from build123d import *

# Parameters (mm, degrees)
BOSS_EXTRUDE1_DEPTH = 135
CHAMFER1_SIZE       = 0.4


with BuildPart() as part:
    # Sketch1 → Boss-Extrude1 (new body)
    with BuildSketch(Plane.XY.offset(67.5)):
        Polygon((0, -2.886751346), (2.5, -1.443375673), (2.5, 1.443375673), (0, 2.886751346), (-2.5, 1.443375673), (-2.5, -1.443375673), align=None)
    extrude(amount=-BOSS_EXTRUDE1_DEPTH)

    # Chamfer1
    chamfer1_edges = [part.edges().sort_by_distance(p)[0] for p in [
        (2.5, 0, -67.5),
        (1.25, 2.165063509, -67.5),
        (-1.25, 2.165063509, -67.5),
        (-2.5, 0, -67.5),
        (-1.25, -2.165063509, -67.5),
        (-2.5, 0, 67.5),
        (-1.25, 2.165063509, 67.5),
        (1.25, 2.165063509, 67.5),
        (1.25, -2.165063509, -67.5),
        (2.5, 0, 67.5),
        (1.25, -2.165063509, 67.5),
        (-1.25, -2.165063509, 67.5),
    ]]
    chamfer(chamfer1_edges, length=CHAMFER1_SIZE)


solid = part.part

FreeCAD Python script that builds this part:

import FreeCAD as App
import Part
import Sketcher
Q = App.Units.Quantity


def edges_at(feature, points):
    """Names of the edges that pass closest to the given points."""
    edges = feature.Shape.Edges
    near = lambda p: min(range(len(edges)), key=lambda i: edges[i].distToShape(Part.Vertex(*p))[0])
    return sorted({f"Edge{near(p) + 1}" for p in points})


def add_polygon(sketch, points):
    """Adds a closed chain of lines whose ends are joined by coincident constraints."""
    first, n = sketch.GeometryCount, len(points)
    for a, b in zip(points, points[1:] + points[:1]):
        sketch.addGeometry(Part.LineSegment(App.Vector(*a, 0), App.Vector(*b, 0)), False)
    for i in range(n):
        sketch.addConstraint(Sketcher.Constraint("Coincident", first + i, 2, first + (i + 1) % n, 1))

doc = App.newDocument("Part")
params = doc.addObject("Spreadsheet::Sheet", "Params")
for row, (alias, value) in enumerate([
    ("pad1_length", "135 mm"),
    ("chamfer_size", "0.4 mm"),
], start=1):
    params.set(f"A{row}", alias)
    params.set(f"B{row}", "=" + value)
    params.setAlias(f"B{row}", alias)

body = doc.addObject("PartDesign::Body", "Body")

sketch1 = doc.addObject("Sketcher::SketchObject", "Sketch")
body.addObject(sketch1)
sketch1.AttachmentSupport = (doc.XY_Plane, [""])
sketch1.MapMode = "FlatFace"
sketch1.AttachmentOffset = App.Placement(App.Vector(0, 0, 67.5), App.Rotation())
add_polygon(sketch1, [(0, -2.9), (2.5, -1.4), (2.5, 1.4), (0, 2.9), (-2.5, 1.4), (-2.5, -1.4)])
sketch1.addConstraint([
    Sketcher.Constraint("Vertical", 1),
    Sketcher.Constraint("Vertical", 4),
    Sketcher.Constraint("Symmetric", 0, 2, 3, 2, -1, 1),
    Sketcher.Constraint("Symmetric", 2, 2, 5, 2, -1, 1),
    Sketcher.Constraint("PointOnObject", 2, 2, -2),
    Sketcher.Constraint("Parallel", 2, 5),
    Sketcher.Constraint("Horizontal", 1, 2, 3, 2),
    Sketcher.Constraint("Angle", 0, Q("30 deg")),
    Sketcher.Constraint("DistanceX", 3, 2, 1, 2, 5.0),
    Sketcher.Constraint("DistanceY", 1, 1, 1, 2, 2.886751),
])
pad1 = doc.addObject("PartDesign::Pad", "Pad")
body.addObject(pad1)
pad1.Profile = sketch1
pad1.setExpression("Length", "Params.pad1_length")
pad1.Reversed = True
doc.recompute()

chamfer = doc.addObject("PartDesign::Chamfer", "Chamfer")
body.addObject(chamfer)
chamfer.Base = (pad1, edges_at(pad1, [
    (2.5, 0, -67.5),
    (1.25, 2.165, -67.5),
    (-1.25, 2.165, -67.5),
    (-2.5, 0, -67.5),
    (-1.25, -2.165, -67.5),
    (-2.5, 0, 67.5),
    (-1.25, 2.165, 67.5),
    (1.25, 2.165, 67.5),
    (1.25, -2.165, -67.5),
    (2.5, 0, 67.5),
    (1.25, -2.165, 67.5),
    (-1.25, -2.165, 67.5),
]))
chamfer.setExpression("Size", "Params.chamfer_size")

doc.recompute()
